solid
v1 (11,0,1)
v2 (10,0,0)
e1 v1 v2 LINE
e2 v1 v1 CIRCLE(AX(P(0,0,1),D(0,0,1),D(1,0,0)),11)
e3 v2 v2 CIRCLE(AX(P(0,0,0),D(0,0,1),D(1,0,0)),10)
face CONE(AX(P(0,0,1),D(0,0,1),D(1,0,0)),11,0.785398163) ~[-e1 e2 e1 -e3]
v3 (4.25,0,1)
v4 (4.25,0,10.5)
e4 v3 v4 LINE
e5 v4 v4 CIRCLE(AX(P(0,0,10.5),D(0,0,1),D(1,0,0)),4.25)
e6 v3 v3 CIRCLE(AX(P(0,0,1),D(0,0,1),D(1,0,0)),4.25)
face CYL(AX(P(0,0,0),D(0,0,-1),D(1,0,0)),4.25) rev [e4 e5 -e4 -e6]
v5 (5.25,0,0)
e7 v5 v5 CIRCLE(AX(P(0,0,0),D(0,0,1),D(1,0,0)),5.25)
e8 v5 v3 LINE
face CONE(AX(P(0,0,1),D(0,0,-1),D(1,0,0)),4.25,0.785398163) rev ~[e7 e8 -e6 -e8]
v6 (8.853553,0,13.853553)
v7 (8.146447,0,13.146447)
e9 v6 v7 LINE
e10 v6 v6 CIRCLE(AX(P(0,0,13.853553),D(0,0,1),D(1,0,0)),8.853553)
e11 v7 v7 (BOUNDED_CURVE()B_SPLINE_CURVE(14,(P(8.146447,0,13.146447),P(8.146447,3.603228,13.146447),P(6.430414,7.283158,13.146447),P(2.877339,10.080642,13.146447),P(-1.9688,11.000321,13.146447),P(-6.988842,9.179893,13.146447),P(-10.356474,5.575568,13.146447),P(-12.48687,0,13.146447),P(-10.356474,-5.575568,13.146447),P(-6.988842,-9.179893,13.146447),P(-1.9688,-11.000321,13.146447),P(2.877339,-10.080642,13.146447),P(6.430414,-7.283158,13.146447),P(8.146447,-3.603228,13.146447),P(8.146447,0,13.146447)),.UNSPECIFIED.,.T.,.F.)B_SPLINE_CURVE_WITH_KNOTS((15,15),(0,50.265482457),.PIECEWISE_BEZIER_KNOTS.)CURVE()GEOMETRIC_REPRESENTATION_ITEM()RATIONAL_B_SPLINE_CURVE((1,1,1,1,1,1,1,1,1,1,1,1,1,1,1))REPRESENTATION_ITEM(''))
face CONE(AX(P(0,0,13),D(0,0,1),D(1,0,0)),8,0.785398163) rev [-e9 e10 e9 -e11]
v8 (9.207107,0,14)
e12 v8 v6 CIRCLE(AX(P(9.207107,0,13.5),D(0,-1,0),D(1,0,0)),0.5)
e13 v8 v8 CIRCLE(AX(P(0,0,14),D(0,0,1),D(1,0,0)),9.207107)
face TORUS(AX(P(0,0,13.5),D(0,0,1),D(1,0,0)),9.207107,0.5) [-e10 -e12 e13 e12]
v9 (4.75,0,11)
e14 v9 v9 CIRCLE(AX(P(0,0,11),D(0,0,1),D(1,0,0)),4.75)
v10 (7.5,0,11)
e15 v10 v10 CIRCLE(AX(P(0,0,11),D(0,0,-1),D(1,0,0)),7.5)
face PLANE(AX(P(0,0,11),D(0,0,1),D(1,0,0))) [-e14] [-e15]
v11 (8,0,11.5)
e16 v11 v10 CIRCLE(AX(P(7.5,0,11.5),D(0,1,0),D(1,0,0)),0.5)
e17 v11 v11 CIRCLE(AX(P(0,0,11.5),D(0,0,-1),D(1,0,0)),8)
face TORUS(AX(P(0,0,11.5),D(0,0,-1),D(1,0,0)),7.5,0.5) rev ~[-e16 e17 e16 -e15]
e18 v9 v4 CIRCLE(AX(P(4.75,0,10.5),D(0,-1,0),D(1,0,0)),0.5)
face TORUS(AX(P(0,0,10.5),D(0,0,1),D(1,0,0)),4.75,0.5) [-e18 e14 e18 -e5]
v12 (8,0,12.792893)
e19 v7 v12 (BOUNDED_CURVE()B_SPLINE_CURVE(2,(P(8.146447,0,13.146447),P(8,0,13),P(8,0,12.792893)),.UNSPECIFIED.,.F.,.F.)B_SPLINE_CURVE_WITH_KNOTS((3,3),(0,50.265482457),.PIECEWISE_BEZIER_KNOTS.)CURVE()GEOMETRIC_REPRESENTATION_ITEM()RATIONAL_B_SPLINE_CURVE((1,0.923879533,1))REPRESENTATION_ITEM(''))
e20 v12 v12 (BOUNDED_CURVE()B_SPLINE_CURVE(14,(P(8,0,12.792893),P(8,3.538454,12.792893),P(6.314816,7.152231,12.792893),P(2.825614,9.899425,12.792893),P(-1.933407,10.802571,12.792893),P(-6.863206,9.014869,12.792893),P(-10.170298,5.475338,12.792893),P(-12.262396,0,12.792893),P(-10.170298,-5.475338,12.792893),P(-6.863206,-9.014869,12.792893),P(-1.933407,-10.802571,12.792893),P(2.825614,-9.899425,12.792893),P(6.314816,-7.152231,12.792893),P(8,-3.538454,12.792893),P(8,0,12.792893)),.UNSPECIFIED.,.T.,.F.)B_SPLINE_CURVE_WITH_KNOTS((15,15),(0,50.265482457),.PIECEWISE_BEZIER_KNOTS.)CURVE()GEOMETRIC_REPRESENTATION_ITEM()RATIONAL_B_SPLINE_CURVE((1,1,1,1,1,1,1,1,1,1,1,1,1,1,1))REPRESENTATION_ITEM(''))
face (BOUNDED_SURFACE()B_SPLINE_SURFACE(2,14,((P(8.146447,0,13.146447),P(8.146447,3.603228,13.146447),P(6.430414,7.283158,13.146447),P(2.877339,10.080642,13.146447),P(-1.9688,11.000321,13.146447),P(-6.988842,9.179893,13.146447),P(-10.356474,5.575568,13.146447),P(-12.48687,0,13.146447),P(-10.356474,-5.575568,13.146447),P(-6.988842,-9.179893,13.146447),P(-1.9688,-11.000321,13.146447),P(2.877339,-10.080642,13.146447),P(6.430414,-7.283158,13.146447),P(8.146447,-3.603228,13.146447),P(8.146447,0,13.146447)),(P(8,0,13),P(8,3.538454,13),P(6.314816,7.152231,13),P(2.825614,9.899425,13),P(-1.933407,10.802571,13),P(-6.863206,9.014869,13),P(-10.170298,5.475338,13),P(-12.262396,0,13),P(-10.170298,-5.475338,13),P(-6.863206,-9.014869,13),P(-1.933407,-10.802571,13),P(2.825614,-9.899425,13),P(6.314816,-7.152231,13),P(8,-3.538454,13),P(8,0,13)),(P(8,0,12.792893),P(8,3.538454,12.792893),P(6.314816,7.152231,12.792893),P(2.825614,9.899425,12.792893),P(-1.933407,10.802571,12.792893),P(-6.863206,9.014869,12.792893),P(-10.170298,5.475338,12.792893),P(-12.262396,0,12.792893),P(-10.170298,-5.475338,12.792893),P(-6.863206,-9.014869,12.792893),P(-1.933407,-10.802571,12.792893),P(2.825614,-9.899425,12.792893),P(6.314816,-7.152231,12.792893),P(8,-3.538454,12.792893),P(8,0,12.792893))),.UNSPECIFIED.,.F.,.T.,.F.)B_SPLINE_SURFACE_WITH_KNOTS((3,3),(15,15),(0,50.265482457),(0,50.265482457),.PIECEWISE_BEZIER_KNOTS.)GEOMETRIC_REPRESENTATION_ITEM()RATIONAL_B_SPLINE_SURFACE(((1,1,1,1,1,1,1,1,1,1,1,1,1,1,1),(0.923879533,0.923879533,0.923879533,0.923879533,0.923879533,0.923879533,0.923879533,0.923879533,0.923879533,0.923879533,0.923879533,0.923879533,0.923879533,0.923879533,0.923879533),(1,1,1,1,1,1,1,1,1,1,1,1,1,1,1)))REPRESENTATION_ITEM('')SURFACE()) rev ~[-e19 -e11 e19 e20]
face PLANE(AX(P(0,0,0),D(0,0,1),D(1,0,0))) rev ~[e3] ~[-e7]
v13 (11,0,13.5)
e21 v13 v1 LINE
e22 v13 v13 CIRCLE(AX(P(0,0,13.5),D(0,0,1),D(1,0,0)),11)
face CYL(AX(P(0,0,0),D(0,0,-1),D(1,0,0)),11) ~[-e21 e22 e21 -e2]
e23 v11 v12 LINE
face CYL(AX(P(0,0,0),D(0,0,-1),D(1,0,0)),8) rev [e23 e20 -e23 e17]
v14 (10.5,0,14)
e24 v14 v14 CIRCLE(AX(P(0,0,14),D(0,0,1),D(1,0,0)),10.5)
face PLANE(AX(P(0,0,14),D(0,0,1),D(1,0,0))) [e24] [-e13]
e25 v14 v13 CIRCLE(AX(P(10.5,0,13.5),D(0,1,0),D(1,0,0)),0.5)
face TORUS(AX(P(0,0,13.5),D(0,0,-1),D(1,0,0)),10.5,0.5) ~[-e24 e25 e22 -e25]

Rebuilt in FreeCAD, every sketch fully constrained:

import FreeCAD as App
import Part
import Sketcher
from FreeCAD import Vector
Q = App.Units.Quantity


def edges_at(feature, points):
    """Names of the edges that pass closest to the given points."""
    edges = feature.Shape.Edges
    near = lambda p: min(range(len(edges)), key=lambda i: edges[i].distToShape(Part.Vertex(*p))[0])
    return sorted({f"Edge{near(p) + 1}" for p in points})

doc = App.newDocument("Part")
body = doc.addObject("PartDesign::Body", "Body")

sketch1 = body.newObject("Sketcher::SketchObject", "Sketch")
sketch1.AttachmentSupport = (doc.getObject("XY_Plane"), [""])
sketch1.MapMode = "FlatFace"
sketch1.addGeometry(Part.Circle(Vector(0, 0, 0), Vector(0, 0, 1), 11), False)
sketch1.addGeometry(Part.Circle(Vector(0, 0, 0), Vector(0, 0, 1), 4.25), False)
sketch1.addConstraint(Sketcher.Constraint("Coincident", 0, 3, -1, 1))
sketch1.addConstraint(Sketcher.Constraint("Coincident", 1, 3, -1, 1))
sketch1.addConstraint(Sketcher.Constraint("Diameter", 0, Q("22 mm")))
sketch1.addConstraint(Sketcher.Constraint("Diameter", 1, Q("8.5 mm")))
pad1 = body.newObject("PartDesign::Pad", "Pad")
pad1.Profile = sketch1
pad1.Length = 11

sketch2 = body.newObject("Sketcher::SketchObject", "Sketch001")
sketch2.AttachmentSupport = (doc.getObject("XY_Plane"), [""])
sketch2.MapMode = "FlatFace"
sketch2.addGeometry(Part.Circle(Vector(0, 0, 0), Vector(0, 0, 1), 11), False)
sketch2.addGeometry(Part.Circle(Vector(0, 0, 0), Vector(0, 0, 1), 8), False)
sketch2.addConstraint(Sketcher.Constraint("Coincident", 0, 3, -1, 1))
sketch2.addConstraint(Sketcher.Constraint("Coincident", 1, 3, -1, 1))
sketch2.addConstraint(Sketcher.Constraint("Diameter", 0, Q("22 mm")))
sketch2.addConstraint(Sketcher.Constraint("Diameter", 1, Q("16 mm")))
pad2 = body.newObject("PartDesign::Pad", "Pad001")
pad2.Profile = sketch2
pad2.Length = 14
doc.recompute()

chamfer = body.newObject("PartDesign::Chamfer", "Chamfer")
chamfer.Base = (pad2, edges_at(pad2, [(-8, 0, 14)]))
chamfer.Size = 1
doc.recompute()

fillet = body.newObject("PartDesign::Fillet", "Fillet")
fillet.Base = (chamfer, edges_at(chamfer, [
    (-9, 0, 14),
    (-8, 0, 13),
    (-11, 0, 14),
    (-8, 0, 11),
    (-4.25, 0, 11),
]))
fillet.Radius = 0.5
doc.recompute()

chamfer2 = body.newObject("PartDesign::Chamfer", "Chamfer001")
chamfer2.Base = (fillet, edges_at(fillet, [(-11, 0, 0), (-4.25, 0, 0)]))
chamfer2.Size = 1

doc.recompute()
